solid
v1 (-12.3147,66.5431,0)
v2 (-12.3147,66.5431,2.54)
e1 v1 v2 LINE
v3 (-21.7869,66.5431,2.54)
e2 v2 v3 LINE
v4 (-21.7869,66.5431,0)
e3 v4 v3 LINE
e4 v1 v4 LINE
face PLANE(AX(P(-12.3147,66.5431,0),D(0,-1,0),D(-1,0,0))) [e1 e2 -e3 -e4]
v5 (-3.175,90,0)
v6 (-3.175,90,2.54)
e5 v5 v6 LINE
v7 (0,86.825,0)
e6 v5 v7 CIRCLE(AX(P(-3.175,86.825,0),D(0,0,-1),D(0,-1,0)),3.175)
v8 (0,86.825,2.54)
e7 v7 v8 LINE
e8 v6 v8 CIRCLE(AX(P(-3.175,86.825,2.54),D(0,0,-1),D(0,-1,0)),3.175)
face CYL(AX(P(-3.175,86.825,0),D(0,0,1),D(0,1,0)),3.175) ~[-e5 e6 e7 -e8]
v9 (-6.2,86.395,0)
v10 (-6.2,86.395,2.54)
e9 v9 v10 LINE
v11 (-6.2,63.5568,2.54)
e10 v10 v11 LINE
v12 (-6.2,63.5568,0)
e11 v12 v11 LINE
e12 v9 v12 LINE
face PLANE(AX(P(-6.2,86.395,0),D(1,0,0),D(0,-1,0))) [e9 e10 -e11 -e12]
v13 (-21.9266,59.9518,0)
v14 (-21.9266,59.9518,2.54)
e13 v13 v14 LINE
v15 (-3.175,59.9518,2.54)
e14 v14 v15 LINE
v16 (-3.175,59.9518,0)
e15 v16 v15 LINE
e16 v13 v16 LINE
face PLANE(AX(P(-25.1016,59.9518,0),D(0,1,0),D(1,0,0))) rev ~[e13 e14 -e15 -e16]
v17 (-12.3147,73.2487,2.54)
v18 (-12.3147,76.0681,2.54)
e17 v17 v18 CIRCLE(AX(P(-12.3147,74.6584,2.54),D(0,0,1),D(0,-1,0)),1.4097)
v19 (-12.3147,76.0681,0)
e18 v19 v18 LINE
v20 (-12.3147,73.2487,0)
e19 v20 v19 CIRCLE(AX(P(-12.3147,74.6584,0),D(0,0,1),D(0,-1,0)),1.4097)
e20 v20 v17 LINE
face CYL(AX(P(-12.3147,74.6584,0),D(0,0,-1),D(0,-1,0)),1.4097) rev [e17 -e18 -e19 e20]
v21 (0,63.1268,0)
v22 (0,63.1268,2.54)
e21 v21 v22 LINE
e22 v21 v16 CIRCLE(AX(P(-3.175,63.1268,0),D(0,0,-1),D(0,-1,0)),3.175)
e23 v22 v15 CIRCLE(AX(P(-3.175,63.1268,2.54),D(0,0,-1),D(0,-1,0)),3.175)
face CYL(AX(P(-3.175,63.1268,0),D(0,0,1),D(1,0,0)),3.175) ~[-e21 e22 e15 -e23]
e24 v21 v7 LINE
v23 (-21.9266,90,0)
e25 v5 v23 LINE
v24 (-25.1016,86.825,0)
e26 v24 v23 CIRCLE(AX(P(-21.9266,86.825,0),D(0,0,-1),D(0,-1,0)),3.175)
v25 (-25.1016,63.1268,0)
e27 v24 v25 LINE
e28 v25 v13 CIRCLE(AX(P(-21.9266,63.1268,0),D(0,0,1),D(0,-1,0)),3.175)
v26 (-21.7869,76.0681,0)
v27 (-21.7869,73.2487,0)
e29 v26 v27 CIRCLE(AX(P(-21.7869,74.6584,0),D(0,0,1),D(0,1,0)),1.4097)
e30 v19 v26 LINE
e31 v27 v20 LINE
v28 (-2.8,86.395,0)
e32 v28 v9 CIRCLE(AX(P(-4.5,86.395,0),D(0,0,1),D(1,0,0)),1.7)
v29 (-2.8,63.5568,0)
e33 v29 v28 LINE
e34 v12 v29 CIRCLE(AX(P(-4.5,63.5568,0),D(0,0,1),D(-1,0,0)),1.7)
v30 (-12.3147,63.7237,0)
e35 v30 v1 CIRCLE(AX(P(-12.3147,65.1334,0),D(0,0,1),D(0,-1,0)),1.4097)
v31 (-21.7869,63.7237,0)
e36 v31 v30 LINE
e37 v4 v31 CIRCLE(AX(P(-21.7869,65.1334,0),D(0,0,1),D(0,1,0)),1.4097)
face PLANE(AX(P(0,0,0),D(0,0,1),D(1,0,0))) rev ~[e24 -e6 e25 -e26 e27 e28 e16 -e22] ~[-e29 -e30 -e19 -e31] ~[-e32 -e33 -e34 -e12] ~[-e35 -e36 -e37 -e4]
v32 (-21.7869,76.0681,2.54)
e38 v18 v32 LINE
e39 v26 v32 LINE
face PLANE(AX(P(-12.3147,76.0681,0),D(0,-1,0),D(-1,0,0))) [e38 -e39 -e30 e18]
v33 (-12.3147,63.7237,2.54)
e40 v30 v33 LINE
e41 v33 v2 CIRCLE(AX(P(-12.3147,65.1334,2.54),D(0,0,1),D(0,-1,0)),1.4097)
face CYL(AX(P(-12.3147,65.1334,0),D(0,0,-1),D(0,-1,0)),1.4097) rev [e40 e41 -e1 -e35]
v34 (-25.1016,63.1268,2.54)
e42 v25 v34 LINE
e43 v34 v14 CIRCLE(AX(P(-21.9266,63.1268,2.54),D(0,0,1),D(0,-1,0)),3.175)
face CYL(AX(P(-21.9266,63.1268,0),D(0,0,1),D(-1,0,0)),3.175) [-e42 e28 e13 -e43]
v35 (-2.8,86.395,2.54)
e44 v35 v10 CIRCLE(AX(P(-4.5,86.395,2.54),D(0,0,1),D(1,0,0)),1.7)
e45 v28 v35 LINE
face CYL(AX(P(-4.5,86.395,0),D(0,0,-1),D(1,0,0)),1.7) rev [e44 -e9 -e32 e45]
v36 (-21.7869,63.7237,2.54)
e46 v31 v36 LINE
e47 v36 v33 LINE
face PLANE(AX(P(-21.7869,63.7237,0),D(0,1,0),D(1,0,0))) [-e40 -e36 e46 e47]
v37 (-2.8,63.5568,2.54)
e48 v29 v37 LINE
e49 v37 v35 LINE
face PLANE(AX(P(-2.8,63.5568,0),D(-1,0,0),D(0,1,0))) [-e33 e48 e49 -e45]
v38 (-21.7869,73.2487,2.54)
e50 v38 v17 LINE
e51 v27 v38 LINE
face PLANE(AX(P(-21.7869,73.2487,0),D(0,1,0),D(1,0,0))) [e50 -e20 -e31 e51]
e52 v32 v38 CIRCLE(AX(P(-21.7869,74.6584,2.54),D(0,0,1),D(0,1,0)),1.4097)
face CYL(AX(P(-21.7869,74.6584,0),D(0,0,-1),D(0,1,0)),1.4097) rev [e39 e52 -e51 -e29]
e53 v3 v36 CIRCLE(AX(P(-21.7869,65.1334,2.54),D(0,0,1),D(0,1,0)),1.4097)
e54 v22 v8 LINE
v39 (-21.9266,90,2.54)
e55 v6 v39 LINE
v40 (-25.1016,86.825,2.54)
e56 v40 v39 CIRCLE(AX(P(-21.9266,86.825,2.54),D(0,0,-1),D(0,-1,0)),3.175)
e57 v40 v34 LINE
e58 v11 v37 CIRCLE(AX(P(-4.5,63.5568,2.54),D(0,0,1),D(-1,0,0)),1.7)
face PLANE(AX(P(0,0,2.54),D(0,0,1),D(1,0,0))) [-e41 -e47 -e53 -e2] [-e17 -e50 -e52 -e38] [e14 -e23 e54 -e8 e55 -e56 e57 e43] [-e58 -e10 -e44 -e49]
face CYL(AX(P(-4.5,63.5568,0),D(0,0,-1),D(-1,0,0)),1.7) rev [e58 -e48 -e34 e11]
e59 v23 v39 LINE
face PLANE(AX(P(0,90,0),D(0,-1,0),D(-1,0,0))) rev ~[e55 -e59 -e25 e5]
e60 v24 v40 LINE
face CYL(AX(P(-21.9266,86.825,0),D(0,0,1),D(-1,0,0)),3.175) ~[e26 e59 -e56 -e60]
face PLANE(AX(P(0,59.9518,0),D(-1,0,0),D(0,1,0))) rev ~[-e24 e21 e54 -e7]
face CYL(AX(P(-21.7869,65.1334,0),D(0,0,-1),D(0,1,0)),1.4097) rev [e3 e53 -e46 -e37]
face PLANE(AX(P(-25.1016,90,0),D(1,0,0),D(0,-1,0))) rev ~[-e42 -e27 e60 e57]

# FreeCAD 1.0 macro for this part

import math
import FreeCAD as App
import Part
import Sketcher
Q = App.Units.Quantity


def edges_at(feature, points):
    """Names of the edges that pass closest to the given points."""
    edges = feature.Shape.Edges
    near = lambda p: min(range(len(edges)), key=lambda i: edges[i].distToShape(Part.Vertex(*p))[0])
    return sorted({f"Edge{near(p) + 1}" for p in points})

doc = App.newDocument("Part")
body = doc.addObject("PartDesign::Body", "Body")

# Sketch on XY plane
sketch1 = body.newObject("Sketcher::SketchObject", "Sketch")
sketch1.AttachmentSupport = (doc.getObject("XY_Plane"), [""])
sketch1.MapMode = "FlatFace"
sketch1.addGeometry(Part.LineSegment(App.Vector(-25.1, 90, 0), App.Vector(-25.1, 60, 0)), False)
sketch1.addGeometry(Part.LineSegment(App.Vector(-25.1, 60, 0), App.Vector(0, 60, 0)), False)
sketch1.addGeometry(Part.LineSegment(App.Vector(0, 60, 0), App.Vector(0, 90, 0)), False)
sketch1.addGeometry(Part.LineSegment(App.Vector(0, 90, 0), App.Vector(-25.1, 90, 0)), False)
sketch1.addGeometry(Part.LineSegment(App.Vector(-21.8, 66.5, 0), App.Vector(-12.3, 66.5, 0)), False)
sketch1.addGeometry(Part.ArcOfCircle(Part.Circle(App.Vector(-12.3, 65.1, 0), App.Vector(0, 0, 1), 1.4), math.radians(-90), math.radians(90)), False)
sketch1.addGeometry(Part.LineSegment(App.Vector(-12.3, 63.7, 0), App.Vector(-21.8, 63.7, 0)), False)
sketch1.addGeometry(Part.ArcOfCircle(Part.Circle(App.Vector(-21.8, 65.1, 0), App.Vector(0, 0, 1), 1.4), math.radians(90), math.radians(270)), False)
sketch1.addGeometry(Part.LineSegment(App.Vector(-21.8, 76.1, 0), App.Vector(-12.3, 76.1, 0)), False)
sketch1.addGeometry(Part.ArcOfCircle(Part.Circle(App.Vector(-12.3, 74.7, 0), App.Vector(0, 0, 1), 1.4), math.radians(-90), math.radians(90)), False)
sketch1.addGeometry(Part.LineSegment(App.Vector(-12.3, 73.2, 0), App.Vector(-21.8, 73.2, 0)), False)
sketch1.addGeometry(Part.ArcOfCircle(Part.Circle(App.Vector(-21.8, 74.7, 0), App.Vector(0, 0, 1), 1.4), math.radians(90), math.radians(270)), False)
sketch1.addGeometry(Part.LineSegment(App.Vector(-2.8, 86.4, 0), App.Vector(-2.8, 63.6, 0)), False)
sketch1.addGeometry(Part.ArcOfCircle(Part.Circle(App.Vector(-4.5, 63.6, 0), App.Vector(0, 0, 1), 1.7), math.radians(180), math.radians(360)), False)
sketch1.addGeometry(Part.LineSegment(App.Vector(-6.2, 63.6, 0), App.Vector(-6.2, 86.4, 0)), False)
sketch1.addGeometry(Part.ArcOfCircle(Part.Circle(App.Vector(-4.5, 86.4, 0), App.Vector(0, 0, 1), 1.7), math.radians(0), math.radians(180)), False)
sketch1.addConstraint(Sketcher.Constraint("Coincident", 0, 2, 1, 1))
sketch1.addConstraint(Sketcher.Constraint("Coincident", 1, 2, 2, 1))
sketch1.addConstraint(Sketcher.Constraint("Coincident", 2, 2, 3, 1))
sketch1.addConstraint(Sketcher.Constraint("Coincident", 3, 2, 0, 1))
sketch1.addConstraint(Sketcher.Constraint("Tangent", 4, 2, 5, 2))
sketch1.addConstraint(Sketcher.Constraint("Tangent", 5, 1, 6, 1))
sketch1.addConstraint(Sketcher.Constraint("Tangent", 6, 2, 7, 2))
sketch1.addConstraint(Sketcher.Constraint("Tangent", 7, 1, 4, 1))
sketch1.addConstraint(Sketcher.Constraint("Tangent", 8, 2, 9, 2))
sketch1.addConstraint(Sketcher.Constraint("Tangent", 9, 1, 10, 1))
sketch1.addConstraint(Sketcher.Constraint("Tangent", 10, 2, 11, 2))
sketch1.addConstraint(Sketcher.Constraint("Tangent", 11, 1, 8, 1))
sketch1.addConstraint(Sketcher.Constraint("Tangent", 12, 2, 13, 2))
sketch1.addConstraint(Sketcher.Constraint("Tangent", 13, 1, 14, 1))
sketch1.addConstraint(Sketcher.Constraint("Tangent", 14, 2, 15, 2))
sketch1.addConstraint(Sketcher.Constraint("Tangent", 15, 1, 12, 1))
sketch1.addConstraint(Sketcher.Constraint("Vertical", 0))
sketch1.addConstraint(Sketcher.Constraint("Horizontal", 1))
sketch1.addConstraint(Sketcher.Constraint("Vertical", 2))
sketch1.addConstraint(Sketcher.Constraint("Horizontal", 3))
sketch1.addConstraint(Sketcher.Constraint("Horizontal", 4))
sketch1.addConstraint(Sketcher.Constraint("Horizontal", 6))
sketch1.addConstraint(Sketcher.Constraint("Horizontal", 8))
sketch1.addConstraint(Sketcher.Constraint("Horizontal", 10))
sketch1.addConstraint(Sketcher.Constraint("Vertical", 12))
sketch1.addConstraint(Sketcher.Constraint("Vertical", 14))
sketch1.addConstraint(Sketcher.Constraint("Equal", 7, 9))
sketch1.addConstraint(Sketcher.Constraint("PointOnObject", 1, 2, -2))
sketch1.addConstraint(Sketcher.Constraint("Vertical", 5, 3, 9, 3))
sketch1.addConstraint(Sketcher.Constraint("Vertical", 7, 3, 11, 3))
sketch1.addConstraint(Sketcher.Constraint("Radius", 5, Q("0.0555 in")))
sketch1.addConstraint(Sketcher.Constraint("DistanceY", 0, 2, 0, 1, Q("1.183 in")))
sketch1.addConstraint(Sketcher.Constraint("Radius", 13, Q("1.7 mm")))
sketch1.addConstraint(Sketcher.Constraint("DistanceY", 5, 3, 9, 3, Q("0.375 in")))
sketch1.addConstraint(Sketcher.Constraint("DistanceY", 0, 2, 7, 3, Q("0.204 in")))
sketch1.addConstraint(Sketcher.Constraint("DistanceX", 1, 1, 1, 2, Q("25.1016 mm")))
sketch1.addConstraint(Sketcher.Constraint("DistanceX", 4, 1, 4, 2, Q("9.4722 mm")))
sketch1.addConstraint(Sketcher.Constraint("DistanceX", 0, 2, 7, 3, Q("0.1305 in")))
sketch1.addConstraint(Sketcher.Constraint("DistanceX", 13, 3, -1, 1, Q("4.5 mm")))
sketch1.addConstraint(Sketcher.Constraint("DistanceY", 0, 2, 13, 3, Q("3.605 mm")))
sketch1.addConstraint(Sketcher.Constraint("DistanceY", 15, 3, 2, 2, Q("3.605 mm")))
sketch1.addConstraint(Sketcher.Constraint("DistanceY", -1, 1, 5, 3, Q("2.5643 in")))
pad1 = body.newObject("PartDesign::Pad", "Pad")
pad1.Profile = sketch1
pad1.Length = Q("0.1 in")
doc.recompute()

fillet = body.newObject("PartDesign::Fillet", "Fillet")
fillet.Base = (pad1, edges_at(pad1, [
    (-25.102, 90, 1.27),
    (-25.102, 59.952, 1.27),
    (0, 59.952, 1.27),
    (0, 90, 1.27),
]))
fillet.Radius = Q("0.125 in")

doc.recompute()
